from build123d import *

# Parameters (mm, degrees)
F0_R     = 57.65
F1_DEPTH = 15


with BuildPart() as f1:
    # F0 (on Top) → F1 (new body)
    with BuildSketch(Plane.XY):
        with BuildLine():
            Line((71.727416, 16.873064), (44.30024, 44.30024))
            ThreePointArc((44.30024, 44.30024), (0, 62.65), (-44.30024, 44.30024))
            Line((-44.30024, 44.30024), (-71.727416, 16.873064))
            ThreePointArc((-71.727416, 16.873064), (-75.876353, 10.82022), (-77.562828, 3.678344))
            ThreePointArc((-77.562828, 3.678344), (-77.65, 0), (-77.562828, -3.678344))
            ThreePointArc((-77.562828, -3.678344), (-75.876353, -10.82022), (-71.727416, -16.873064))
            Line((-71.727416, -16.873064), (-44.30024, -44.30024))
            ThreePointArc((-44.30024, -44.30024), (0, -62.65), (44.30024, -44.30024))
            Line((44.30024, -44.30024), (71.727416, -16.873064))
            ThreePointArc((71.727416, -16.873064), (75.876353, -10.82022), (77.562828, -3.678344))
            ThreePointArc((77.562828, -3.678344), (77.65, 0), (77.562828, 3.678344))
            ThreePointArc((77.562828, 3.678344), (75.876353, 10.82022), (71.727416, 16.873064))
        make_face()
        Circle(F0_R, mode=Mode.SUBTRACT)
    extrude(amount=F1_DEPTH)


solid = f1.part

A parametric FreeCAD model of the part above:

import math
import FreeCAD as App
import Part
import Sketcher

V = App.Vector

doc = App.newDocument("Part")
body = doc.addObject("PartDesign::Body", "Body")

sketch1 = doc.addObject("Sketcher::SketchObject", "Sketch")
body.addObject(sketch1)
sketch1.AttachmentSupport = (doc.XY_Plane, [""])
sketch1.MapMode = "FlatFace"
sketch1.addGeometry(Part.LineSegment(V(71.727416, 16.873064, 0), V(44.30024, 44.30024, 0)), False)
sketch1.addGeometry(Part.ArcOfCircle(Part.Circle(V(0, -0.000001, 0), V(0, 0, 1), 62.650001), math.radians(45), math.radians(135)), False)
sketch1.addGeometry(Part.LineSegment(V(-44.30024, 44.30024, 0), V(-71.727416, 16.873064, 0)), False)
sketch1.addGeometry(Part.ArcOfCircle(Part.Circle(V(-57.585272, 2.730924, 0), V(0, 0, 1), 20.000009), math.radians(135.000009), math.radians(177.284828)), False)
sketch1.addGeometry(Part.ArcOfCircle(Part.Circle(V(0.000011, 0, 0), V(0, 0, 1), 77.650011), math.radians(177.284836), math.radians(182.715164)), False)
sketch1.addGeometry(Part.ArcOfCircle(Part.Circle(V(-57.585272, -2.730924, 0), V(0, 0, 1), 20.000009), math.radians(-177.284828), math.radians(-135.000009)), False)
sketch1.addGeometry(Part.LineSegment(V(-71.727416, -16.873064, 0), V(-44.30024, -44.30024, 0)), False)
sketch1.addGeometry(Part.ArcOfCircle(Part.Circle(V(0, 0.000001, 0), V(0, 0, 1), 62.650001), math.radians(-135), math.radians(-45)), False)
sketch1.addGeometry(Part.LineSegment(V(44.30024, -44.30024, 0), V(71.727416, -16.873064, 0)), False)
sketch1.addGeometry(Part.ArcOfCircle(Part.Circle(V(57.585272, -2.730924, 0), V(0, 0, 1), 20.000009), math.radians(-44.999991), math.radians(-2.715172)), False)
sketch1.addGeometry(Part.ArcOfCircle(Part.Circle(V(-0.000011, 0, 0), V(0, 0, 1), 77.650011), math.radians(-2.715164), math.radians(2.715164)), False)
sketch1.addGeometry(Part.ArcOfCircle(Part.Circle(V(57.585272, 2.730924, 0), V(0, 0, 1), 20.000009), math.radians(2.715172), math.radians(44.999991)), False)
sketch1.addGeometry(Part.Circle(V(0, 0, 0), V(0, 0, 1), 57.65), False)
sketch1.addConstraint(Sketcher.Constraint("Tangent", 0, 2, 1, 1))
sketch1.addConstraint(Sketcher.Constraint("Tangent", 1, 2, 2, 1))
sketch1.addConstraint(Sketcher.Constraint("Tangent", 2, 2, 3, 1))
sketch1.addConstraint(Sketcher.Constraint("Tangent", 3, 2, 4, 1))
sketch1.addConstraint(Sketcher.Constraint("Tangent", 4, 2, 5, 1))
sketch1.addConstraint(Sketcher.Constraint("Tangent", 5, 2, 6, 1))
sketch1.addConstraint(Sketcher.Constraint("Tangent", 6, 2, 7, 1))
sketch1.addConstraint(Sketcher.Constraint("Tangent", 7, 2, 8, 1))
sketch1.addConstraint(Sketcher.Constraint("Tangent", 8, 2, 9, 1))
sketch1.addConstraint(Sketcher.Constraint("Tangent", 9, 2, 10, 1))
sketch1.addConstraint(Sketcher.Constraint("Tangent", 10, 2, 11, 1))
sketch1.addConstraint(Sketcher.Constraint("Tangent", 11, 2, 0, 1))
sketch1.addConstraint(Sketcher.Constraint("Coincident", 1, 3, -1, 1))
sketch1.addConstraint(Sketcher.Constraint("Coincident", 7, 3, -1, 1))
sketch1.addConstraint(Sketcher.Constraint("Coincident", 12, 3, -1, 1))
sketch1.addConstraint(Sketcher.Constraint("Equal", 3, 5))
sketch1.addConstraint(Sketcher.Constraint("Equal", 1, 7))
sketch1.addConstraint(Sketcher.Constraint("Equal", 5, 9))
sketch1.addConstraint(Sketcher.Constraint("Equal", 4, 10))
sketch1.addConstraint(Sketcher.Constraint("Equal", 9, 11))
sketch1.addConstraint(Sketcher.Constraint("Symmetric", 3, 3, 9, 3, -1, 1))
sketch1.addConstraint(Sketcher.Constraint("Symmetric", 5, 3, 11, 3, -1, 1))
sketch1.addConstraint(Sketcher.Constraint("Symmetric", 5, 3, 9, 3, -2))
sketch1.addConstraint(Sketcher.Constraint("Perpendicular", 0, 2))
sketch1.addConstraint(Sketcher.Constraint("Diameter", 12, 115.3))
sketch1.addConstraint(Sketcher.Constraint("Radius", 1, 62.650001))
sketch1.addConstraint(Sketcher.Constraint("Radius", 3, 20.000009))
sketch1.addConstraint(Sketcher.Constraint("Radius", 4, 77.650011))
sketch1.addConstraint(Sketcher.Constraint("DistanceX", 3, 3, -1, 1, 57.585272))
pad1 = doc.addObject("PartDesign::Pad", "Pad")
body.addObject(pad1)
pad1.Profile = sketch1
pad1.Length = 15

doc.recompute()
